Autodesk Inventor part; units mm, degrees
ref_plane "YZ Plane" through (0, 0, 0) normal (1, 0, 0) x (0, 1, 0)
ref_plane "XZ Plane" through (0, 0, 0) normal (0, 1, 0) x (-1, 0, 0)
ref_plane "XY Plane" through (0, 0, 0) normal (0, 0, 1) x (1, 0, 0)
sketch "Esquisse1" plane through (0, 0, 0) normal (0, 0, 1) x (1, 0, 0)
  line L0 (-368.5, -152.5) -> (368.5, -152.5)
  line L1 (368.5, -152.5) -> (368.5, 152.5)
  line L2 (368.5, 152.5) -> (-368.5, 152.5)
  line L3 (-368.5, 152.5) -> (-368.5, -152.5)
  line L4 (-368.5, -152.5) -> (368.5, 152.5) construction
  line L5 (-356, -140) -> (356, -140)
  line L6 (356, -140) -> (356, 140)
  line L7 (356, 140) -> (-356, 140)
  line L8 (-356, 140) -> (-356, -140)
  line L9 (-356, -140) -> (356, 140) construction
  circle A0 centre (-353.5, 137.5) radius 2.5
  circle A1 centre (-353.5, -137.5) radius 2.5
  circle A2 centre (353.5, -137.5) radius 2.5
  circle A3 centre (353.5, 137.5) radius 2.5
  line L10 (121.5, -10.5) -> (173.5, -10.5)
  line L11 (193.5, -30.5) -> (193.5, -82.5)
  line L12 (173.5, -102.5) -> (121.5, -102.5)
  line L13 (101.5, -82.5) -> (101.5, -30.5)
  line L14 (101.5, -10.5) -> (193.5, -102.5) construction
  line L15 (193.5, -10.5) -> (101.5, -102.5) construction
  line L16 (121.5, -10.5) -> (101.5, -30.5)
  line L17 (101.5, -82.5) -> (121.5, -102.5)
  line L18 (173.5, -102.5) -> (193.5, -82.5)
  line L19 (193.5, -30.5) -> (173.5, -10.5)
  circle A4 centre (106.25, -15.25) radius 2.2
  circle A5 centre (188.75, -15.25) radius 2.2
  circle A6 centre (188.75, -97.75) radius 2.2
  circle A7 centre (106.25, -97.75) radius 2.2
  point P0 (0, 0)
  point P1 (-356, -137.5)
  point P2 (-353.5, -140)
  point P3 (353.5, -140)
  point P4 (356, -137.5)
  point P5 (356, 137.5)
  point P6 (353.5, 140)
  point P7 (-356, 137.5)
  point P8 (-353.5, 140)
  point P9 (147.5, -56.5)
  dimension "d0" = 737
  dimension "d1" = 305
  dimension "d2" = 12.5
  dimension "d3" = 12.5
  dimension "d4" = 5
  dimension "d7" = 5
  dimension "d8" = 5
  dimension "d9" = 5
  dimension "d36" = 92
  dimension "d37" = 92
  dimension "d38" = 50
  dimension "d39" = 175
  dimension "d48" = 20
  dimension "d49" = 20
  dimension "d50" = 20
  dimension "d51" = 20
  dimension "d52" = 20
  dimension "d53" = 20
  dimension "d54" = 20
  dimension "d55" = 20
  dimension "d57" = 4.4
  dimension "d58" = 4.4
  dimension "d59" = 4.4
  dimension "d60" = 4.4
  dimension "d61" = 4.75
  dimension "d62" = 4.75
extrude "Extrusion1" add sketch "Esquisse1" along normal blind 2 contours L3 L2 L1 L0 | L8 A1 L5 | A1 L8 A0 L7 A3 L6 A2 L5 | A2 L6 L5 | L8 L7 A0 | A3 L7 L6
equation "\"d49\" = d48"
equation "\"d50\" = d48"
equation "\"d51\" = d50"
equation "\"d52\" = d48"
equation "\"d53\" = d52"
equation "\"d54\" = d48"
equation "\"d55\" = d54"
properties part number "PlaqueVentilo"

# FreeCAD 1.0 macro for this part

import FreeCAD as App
import Part
import Sketcher

V = App.Vector
Q = App.Units.Quantity


def add_polygon(sketch, points):
    """Adds a closed chain of lines whose ends are joined by coincident constraints."""
    first, n = sketch.GeometryCount, len(points)
    for a, b in zip(points, points[1:] + points[:1]):
        sketch.addGeometry(Part.LineSegment(App.Vector(*a, 0), App.Vector(*b, 0)), False)
    for i in range(n):
        sketch.addConstraint(Sketcher.Constraint("Coincident", first + i, 2, first + (i + 1) % n, 1))

doc = App.newDocument("Part")
body = doc.addObject("PartDesign::Body", "Body")

sketch1 = body.newObject("Sketcher::SketchObject", "Sketch")
sketch1.AttachmentSupport = (doc.getObject("XY_Plane"), [""])
sketch1.MapMode = "FlatFace"
add_polygon(sketch1, [(-368.5, 152.5), (-368.5, -152.5), (368.5, -152.5), (368.5, 152.5)])
sketch1.addGeometry(Part.Circle(V(-353.5, -137.5, 0), V(0, 0, 1), 2.5), False)
add_polygon(sketch1, [(173.5, -10.5), (193.5, -30.5), (193.5, -82.5), (173.5, -102.5), (121.5, -102.5), (101.5, -82.5), (101.5, -30.5), (121.5, -10.5)])
sketch1.addGeometry(Part.Circle(V(-353.5, 137.5, 0), V(0, 0, 1), 2.5), False)
sketch1.addGeometry(Part.Circle(V(353.5, 137.5, 0), V(0, 0, 1), 2.5), False)
sketch1.addGeometry(Part.Circle(V(106.2, -15.2, 0), V(0, 0, 1), 2.2), False)
sketch1.addGeometry(Part.Circle(V(353.5, -137.5, 0), V(0, 0, 1), 2.5), False)
sketch1.addGeometry(Part.Circle(V(188.8, -15.2, 0), V(0, 0, 1), 2.2), False)
sketch1.addGeometry(Part.Circle(V(106.2, -97.8, 0), V(0, 0, 1), 2.2), False)
sketch1.addGeometry(Part.Circle(V(188.8, -97.8, 0), V(0, 0, 1), 2.2), False)
sketch1.addConstraint([
    Sketcher.Constraint("Vertical", 0),
    Sketcher.Constraint("Horizontal", 1),
    Sketcher.Constraint("Vertical", 2),
    Sketcher.Constraint("Horizontal", 3),
    Sketcher.Constraint("Vertical", 6),
    Sketcher.Constraint("Horizontal", 8),
    Sketcher.Constraint("Vertical", 10),
    Sketcher.Constraint("Horizontal", 12),
    Sketcher.Constraint("Equal", 4, 13),
    Sketcher.Constraint("Equal", 13, 14),
    Sketcher.Constraint("Equal", 14, 16),
    Sketcher.Constraint("Equal", 15, 17),
    Sketcher.Constraint("Equal", 17, 18),
    Sketcher.Constraint("Equal", 18, 19),
    Sketcher.Constraint("Symmetric", 4, 3, 14, 3, -1, 1),
    Sketcher.Constraint("Symmetric", 13, 3, 16, 3, -1, 1),
    Sketcher.Constraint("Symmetric", 0, 2, 2, 2, -1, 1),
    Sketcher.Constraint("Symmetric", 13, 3, 14, 3, -2),
    Sketcher.Constraint("Perpendicular", 5, 7),
    Sketcher.Constraint("Perpendicular", 7, 9),
    Sketcher.Constraint("Perpendicular", 9, 11),
    Sketcher.Constraint("Horizontal", 15, 3, 17, 3),
    Sketcher.Constraint("Horizontal", 18, 3, 19, 3),
    Sketcher.Constraint("Horizontal", 6, 2, 9, 2),
    Sketcher.Constraint("Horizontal", 5, 2, 10, 2),
    Sketcher.Constraint("Vertical", 15, 3, 18, 3),
    Sketcher.Constraint("Vertical", 17, 3, 19, 3),
    Sketcher.Constraint("Vertical", 8, 2, 11, 2),
    Sketcher.Constraint("Vertical", 7, 2, 12, 2),
    Sketcher.Constraint("Equal", 12, 6),
    Sketcher.Constraint("Diameter", 4, Q("5 mm")),
    Sketcher.Constraint("Diameter", 15, Q("4.4 mm")),
    Sketcher.Constraint("DistanceX", 1, 1, 1, 2, Q("737 mm")),
    Sketcher.Constraint("DistanceY", 0, 2, 0, 1, Q("305 mm")),
    Sketcher.Constraint("DistanceX", 7, 2, 6, 2, Q("20 mm")),
    Sketcher.Constraint("DistanceX", 8, 2, 8, 1, Q("52 mm")),
    Sketcher.Constraint("DistanceX", 17, 3, 5, 2, Q("4.75 mm")),
    Sketcher.Constraint("DistanceY", 7, 2, 19, 3, Q("4.75 mm")),
    Sketcher.Constraint("DistanceX", 9, 2, 18, 3, Q("4.75 mm")),
    Sketcher.Constraint("DistanceY", 15, 3, 11, 2, Q("4.75 mm")),
    Sketcher.Constraint("DistanceY", 4, 3, 13, 3, Q("275 mm")),
    Sketcher.Constraint("DistanceX", 13, 3, 14, 3, Q("707 mm")),
    Sketcher.Constraint("DistanceX", 5, 2, 16, 3, Q("160 mm")),
    Sketcher.Constraint("DistanceY", 16, 3, 5, 2, Q("107 mm")),
])
pad1 = body.newObject("PartDesign::Pad", "Pad")
pad1.Profile = sketch1
pad1.Length = 2

doc.recompute()
